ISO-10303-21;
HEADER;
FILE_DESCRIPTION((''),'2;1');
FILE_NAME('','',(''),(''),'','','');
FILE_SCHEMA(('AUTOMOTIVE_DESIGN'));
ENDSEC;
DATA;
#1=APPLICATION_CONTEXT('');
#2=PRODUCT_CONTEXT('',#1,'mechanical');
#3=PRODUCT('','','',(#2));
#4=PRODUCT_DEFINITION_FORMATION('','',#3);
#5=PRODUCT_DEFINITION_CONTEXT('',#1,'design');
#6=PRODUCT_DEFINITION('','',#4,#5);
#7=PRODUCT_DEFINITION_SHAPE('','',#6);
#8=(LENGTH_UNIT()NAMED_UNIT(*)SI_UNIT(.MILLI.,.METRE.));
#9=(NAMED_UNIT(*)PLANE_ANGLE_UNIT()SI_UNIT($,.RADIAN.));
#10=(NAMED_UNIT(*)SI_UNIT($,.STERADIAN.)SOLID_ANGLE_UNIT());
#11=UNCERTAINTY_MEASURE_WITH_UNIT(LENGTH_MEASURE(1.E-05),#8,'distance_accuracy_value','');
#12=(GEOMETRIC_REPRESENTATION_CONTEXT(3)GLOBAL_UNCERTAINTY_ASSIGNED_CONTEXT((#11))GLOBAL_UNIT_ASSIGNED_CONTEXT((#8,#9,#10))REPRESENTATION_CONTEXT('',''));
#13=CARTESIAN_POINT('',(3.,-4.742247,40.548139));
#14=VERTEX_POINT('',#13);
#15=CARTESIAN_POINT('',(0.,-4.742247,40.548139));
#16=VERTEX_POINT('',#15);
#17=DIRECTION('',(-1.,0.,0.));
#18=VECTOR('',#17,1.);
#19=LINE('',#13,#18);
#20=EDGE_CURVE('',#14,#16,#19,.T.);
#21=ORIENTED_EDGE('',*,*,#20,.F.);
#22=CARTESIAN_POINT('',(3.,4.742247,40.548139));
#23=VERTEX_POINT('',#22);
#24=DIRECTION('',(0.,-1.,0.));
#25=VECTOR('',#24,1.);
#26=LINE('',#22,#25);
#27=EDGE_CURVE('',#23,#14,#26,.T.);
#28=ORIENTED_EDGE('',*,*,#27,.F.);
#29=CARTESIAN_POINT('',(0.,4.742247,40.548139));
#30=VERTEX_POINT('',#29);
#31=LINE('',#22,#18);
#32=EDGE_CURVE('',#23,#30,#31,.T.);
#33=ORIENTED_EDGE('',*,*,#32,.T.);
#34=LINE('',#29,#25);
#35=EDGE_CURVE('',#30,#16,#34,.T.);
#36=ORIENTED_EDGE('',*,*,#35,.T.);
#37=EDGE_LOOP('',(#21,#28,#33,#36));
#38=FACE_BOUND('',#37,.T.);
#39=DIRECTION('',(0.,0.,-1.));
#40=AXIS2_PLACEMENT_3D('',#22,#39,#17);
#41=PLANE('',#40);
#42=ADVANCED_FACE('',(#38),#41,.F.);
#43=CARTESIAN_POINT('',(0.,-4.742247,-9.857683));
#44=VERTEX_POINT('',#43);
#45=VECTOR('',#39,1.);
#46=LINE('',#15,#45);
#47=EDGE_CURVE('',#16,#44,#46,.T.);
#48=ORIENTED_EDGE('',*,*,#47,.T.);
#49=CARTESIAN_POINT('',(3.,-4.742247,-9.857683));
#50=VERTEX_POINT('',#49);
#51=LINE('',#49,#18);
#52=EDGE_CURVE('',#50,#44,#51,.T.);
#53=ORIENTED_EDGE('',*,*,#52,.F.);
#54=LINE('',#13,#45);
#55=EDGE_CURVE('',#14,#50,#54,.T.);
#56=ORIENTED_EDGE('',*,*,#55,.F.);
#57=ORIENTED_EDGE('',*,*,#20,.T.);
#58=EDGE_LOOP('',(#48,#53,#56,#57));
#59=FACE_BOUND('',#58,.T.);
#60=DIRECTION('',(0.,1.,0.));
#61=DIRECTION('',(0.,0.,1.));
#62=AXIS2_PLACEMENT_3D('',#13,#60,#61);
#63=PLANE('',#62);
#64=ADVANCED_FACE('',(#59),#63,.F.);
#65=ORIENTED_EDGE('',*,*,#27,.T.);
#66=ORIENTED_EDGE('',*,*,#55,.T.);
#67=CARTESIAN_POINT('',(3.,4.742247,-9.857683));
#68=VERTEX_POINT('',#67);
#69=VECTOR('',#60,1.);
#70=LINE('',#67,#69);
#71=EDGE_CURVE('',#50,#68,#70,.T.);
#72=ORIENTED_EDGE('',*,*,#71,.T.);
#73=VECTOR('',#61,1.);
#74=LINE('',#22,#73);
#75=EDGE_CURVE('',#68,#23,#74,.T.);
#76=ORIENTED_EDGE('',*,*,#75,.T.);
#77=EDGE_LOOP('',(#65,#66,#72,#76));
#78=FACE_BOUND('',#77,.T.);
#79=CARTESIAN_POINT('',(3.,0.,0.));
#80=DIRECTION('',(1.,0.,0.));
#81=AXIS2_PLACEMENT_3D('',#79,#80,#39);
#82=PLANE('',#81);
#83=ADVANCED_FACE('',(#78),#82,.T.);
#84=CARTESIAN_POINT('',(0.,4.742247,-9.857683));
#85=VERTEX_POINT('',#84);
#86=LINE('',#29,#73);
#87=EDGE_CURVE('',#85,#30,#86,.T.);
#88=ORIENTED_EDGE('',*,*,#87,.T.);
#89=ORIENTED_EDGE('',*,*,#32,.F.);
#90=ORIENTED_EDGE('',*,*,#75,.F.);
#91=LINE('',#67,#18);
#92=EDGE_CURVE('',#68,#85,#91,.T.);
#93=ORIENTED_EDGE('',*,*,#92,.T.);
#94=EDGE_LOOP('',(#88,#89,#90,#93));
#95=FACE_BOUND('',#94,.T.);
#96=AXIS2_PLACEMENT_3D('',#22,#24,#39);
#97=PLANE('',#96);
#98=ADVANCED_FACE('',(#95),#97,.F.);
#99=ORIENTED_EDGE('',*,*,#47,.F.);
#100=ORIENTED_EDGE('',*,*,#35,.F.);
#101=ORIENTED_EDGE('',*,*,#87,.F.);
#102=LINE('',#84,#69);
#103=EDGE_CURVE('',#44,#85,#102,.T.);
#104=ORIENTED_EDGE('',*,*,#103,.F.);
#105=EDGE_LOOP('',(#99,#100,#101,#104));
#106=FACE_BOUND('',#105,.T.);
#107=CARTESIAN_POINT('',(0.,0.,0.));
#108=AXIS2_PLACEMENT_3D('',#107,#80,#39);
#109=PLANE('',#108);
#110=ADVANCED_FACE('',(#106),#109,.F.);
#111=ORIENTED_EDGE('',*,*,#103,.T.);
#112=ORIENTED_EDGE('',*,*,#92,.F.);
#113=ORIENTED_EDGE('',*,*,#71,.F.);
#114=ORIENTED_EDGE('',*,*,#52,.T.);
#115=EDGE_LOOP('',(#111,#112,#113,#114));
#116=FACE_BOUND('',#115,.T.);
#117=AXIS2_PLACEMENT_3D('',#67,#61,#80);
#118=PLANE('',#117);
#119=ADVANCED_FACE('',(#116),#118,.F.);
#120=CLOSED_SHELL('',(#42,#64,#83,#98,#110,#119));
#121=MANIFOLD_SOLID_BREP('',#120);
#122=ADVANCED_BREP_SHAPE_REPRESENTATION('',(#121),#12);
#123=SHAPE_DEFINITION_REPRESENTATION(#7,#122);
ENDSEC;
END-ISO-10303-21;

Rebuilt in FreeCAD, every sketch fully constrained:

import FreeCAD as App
import Part
import Sketcher
Q = App.Units.Quantity

doc = App.newDocument("Part")
body = doc.addObject("PartDesign::Body", "Body")

# Sketch on YZ plane
sketch1 = body.newObject("Sketcher::SketchObject", "Sketch")
sketch1.AttachmentSupport = (doc.getObject("YZ_Plane"), [""])
sketch1.MapMode = "FlatFace"
sketch1.addGeometry(Part.LineSegment(App.Vector(5, 41, 0), App.Vector(-5, 41, 0)), False)
sketch1.addGeometry(Part.LineSegment(App.Vector(-5, 41, 0), App.Vector(-5, -10, 0)), False)
sketch1.addGeometry(Part.LineSegment(App.Vector(-5, -10, 0), App.Vector(5, -10, 0)), False)
sketch1.addGeometry(Part.LineSegment(App.Vector(5, -10, 0), App.Vector(5, 41, 0)), False)
sketch1.addConstraint(Sketcher.Constraint("Coincident", 0, 2, 1, 1))
sketch1.addConstraint(Sketcher.Constraint("Coincident", 1, 2, 2, 1))
sketch1.addConstraint(Sketcher.Constraint("Coincident", 2, 2, 3, 1))
sketch1.addConstraint(Sketcher.Constraint("Coincident", 3, 2, 0, 1))
sketch1.addConstraint(Sketcher.Constraint("Horizontal", 0))
sketch1.addConstraint(Sketcher.Constraint("Vertical", 1))
sketch1.addConstraint(Sketcher.Constraint("Horizontal", 2))
sketch1.addConstraint(Sketcher.Constraint("Vertical", 3))
sketch1.addConstraint(Sketcher.Constraint("DistanceX", 0, 2, 0, 1, Q("9.484494 mm")))
sketch1.addConstraint(Sketcher.Constraint("DistanceY", 1, 2, 1, 1, Q("50.405822 mm")))
sketch1.addConstraint(Sketcher.Constraint("DistanceY", -1, 1, 0, 2, Q("40.548139 mm")))
sketch1.addConstraint(Sketcher.Constraint("DistanceX", 0, 2, -1, 1, Q("4.742247 mm")))
pad1 = body.newObject("PartDesign::Pad", "Pad")
pad1.Profile = sketch1
pad1.Length = 3

doc.recompute()
